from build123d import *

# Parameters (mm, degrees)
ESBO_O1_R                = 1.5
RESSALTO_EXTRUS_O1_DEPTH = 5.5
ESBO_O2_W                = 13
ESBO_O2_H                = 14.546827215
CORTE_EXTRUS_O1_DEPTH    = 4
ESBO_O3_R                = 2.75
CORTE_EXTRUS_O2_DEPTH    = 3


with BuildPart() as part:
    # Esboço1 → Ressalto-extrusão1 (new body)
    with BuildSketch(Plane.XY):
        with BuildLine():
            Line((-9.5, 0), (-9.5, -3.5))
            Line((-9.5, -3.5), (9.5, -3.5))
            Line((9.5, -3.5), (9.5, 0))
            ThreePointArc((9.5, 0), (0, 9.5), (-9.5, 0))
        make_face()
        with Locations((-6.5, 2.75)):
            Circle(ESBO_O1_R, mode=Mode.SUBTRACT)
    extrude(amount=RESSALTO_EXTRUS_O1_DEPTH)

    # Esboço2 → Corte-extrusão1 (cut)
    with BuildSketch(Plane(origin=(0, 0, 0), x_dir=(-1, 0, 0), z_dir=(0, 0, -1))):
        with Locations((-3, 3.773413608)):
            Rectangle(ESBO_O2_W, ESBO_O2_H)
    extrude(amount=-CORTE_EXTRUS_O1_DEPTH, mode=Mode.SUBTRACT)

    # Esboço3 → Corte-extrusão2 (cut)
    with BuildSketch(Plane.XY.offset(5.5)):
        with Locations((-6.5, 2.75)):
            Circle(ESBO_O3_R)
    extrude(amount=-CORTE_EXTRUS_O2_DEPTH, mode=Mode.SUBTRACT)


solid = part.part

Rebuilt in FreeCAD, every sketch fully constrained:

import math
import FreeCAD as App
import Part
import Sketcher
from FreeCAD import Vector


def add_polygon(sketch, points):
    """Adds a closed chain of lines whose ends are joined by coincident constraints."""
    first, n = sketch.GeometryCount, len(points)
    for a, b in zip(points, points[1:] + points[:1]):
        sketch.addGeometry(Part.LineSegment(App.Vector(*a, 0), App.Vector(*b, 0)), False)
    for i in range(n):
        sketch.addConstraint(Sketcher.Constraint("Coincident", first + i, 2, first + (i + 1) % n, 1))

doc = App.newDocument("Part")
body = doc.addObject("PartDesign::Body", "Body")

sketch1 = body.newObject("Sketcher::SketchObject", "Sketch")
sketch1.AttachmentSupport = (doc.getObject("XY_Plane"), [""])
sketch1.MapMode = "FlatFace"
sketch1.addGeometry(Part.LineSegment(Vector(-9.5, 0, 0), Vector(-9.5, -3.5, 0)), False)
sketch1.addGeometry(Part.LineSegment(Vector(-9.5, -3.5, 0), Vector(9.5, -3.5, 0)), False)
sketch1.addGeometry(Part.LineSegment(Vector(9.5, -3.5, 0), Vector(9.5, 0, 0)), False)
sketch1.addGeometry(Part.ArcOfCircle(Part.Circle(Vector(0, 0, 0), Vector(0, 0, 1), 9.5), math.radians(0), math.radians(180)), False)
sketch1.addGeometry(Part.Circle(Vector(-6.5, 2.8, 0), Vector(0, 0, 1), 1.5), False)
sketch1.addConstraint(Sketcher.Constraint("Coincident", 0, 2, 1, 1))
sketch1.addConstraint(Sketcher.Constraint("Coincident", 1, 2, 2, 1))
sketch1.addConstraint(Sketcher.Constraint("Tangent", 2, 2, 3, 1))
sketch1.addConstraint(Sketcher.Constraint("Tangent", 3, 2, 0, 1))
sketch1.addConstraint(Sketcher.Constraint("Vertical", 0))
sketch1.addConstraint(Sketcher.Constraint("Horizontal", 1))
sketch1.addConstraint(Sketcher.Constraint("Vertical", 2))
sketch1.addConstraint(Sketcher.Constraint("Coincident", 3, 3, -1, 1))
sketch1.addConstraint(Sketcher.Constraint("Diameter", 4, 3.0))
sketch1.addConstraint(Sketcher.Constraint("Radius", 3, 9.5))
sketch1.addConstraint(Sketcher.Constraint("DistanceY", 0, 2, 0, 1, 3.5))
sketch1.addConstraint(Sketcher.Constraint("DistanceX", 0, 2, 4, 3, 3.0))
sketch1.addConstraint(Sketcher.Constraint("DistanceY", -1, 1, 4, 3, 2.75))
pad1 = body.newObject("PartDesign::Pad", "Pad")
pad1.Profile = sketch1
pad1.Length = 5.5

sketch2 = body.newObject("Sketcher::SketchObject", "Sketch001")
sketch2.AttachmentSupport = (doc.getObject("XY_Plane"), [""])
sketch2.MapMode = "FlatFace"
add_polygon(sketch2, [(10, 11), (10, -4), (-4, -4), (-4, 11)])
sketch2.addConstraint(Sketcher.Constraint("Vertical", 0))
sketch2.addConstraint(Sketcher.Constraint("Horizontal", 1))
sketch2.addConstraint(Sketcher.Constraint("Vertical", 2))
sketch2.addConstraint(Sketcher.Constraint("Horizontal", 3))
sketch2.addConstraint(Sketcher.Constraint("DistanceX", 1, 2, 1, 1, 13.0))
sketch2.addConstraint(Sketcher.Constraint("DistanceX", -1, 1, 0, 2, 9.5))
sketch2.addConstraint(Sketcher.Constraint("DistanceY", 0, 2, -1, 1, 3.5))
sketch2.addConstraint(Sketcher.Constraint("DistanceY", 0, 2, 0, 1, 14.546827))
pocket1 = body.newObject("PartDesign::Pocket", "Pocket")
pocket1.Profile = sketch2
pocket1.Length = 4
pocket1.Reversed = True

sketch3 = body.newObject("Sketcher::SketchObject", "Sketch002")
sketch3.AttachmentSupport = (doc.getObject("XY_Plane"), [""])
sketch3.MapMode = "FlatFace"
sketch3.AttachmentOffset = App.Placement(Vector(0, 0, 5.5), App.Rotation())
sketch3.addGeometry(Part.Circle(Vector(-6.5, 2.8, 0), Vector(0, 0, 1), 2.8), False)
sketch3.addConstraint(Sketcher.Constraint("Diameter", 0, 5.5))
sketch3.addConstraint(Sketcher.Constraint("DistanceX", 0, 3, -1, 1, 6.5))
sketch3.addConstraint(Sketcher.Constraint("DistanceY", -1, 1, 0, 3, 2.75))
pocket2 = body.newObject("PartDesign::Pocket", "Pocket001")
pocket2.Profile = sketch3
pocket2.Length = 3

doc.recompute()
